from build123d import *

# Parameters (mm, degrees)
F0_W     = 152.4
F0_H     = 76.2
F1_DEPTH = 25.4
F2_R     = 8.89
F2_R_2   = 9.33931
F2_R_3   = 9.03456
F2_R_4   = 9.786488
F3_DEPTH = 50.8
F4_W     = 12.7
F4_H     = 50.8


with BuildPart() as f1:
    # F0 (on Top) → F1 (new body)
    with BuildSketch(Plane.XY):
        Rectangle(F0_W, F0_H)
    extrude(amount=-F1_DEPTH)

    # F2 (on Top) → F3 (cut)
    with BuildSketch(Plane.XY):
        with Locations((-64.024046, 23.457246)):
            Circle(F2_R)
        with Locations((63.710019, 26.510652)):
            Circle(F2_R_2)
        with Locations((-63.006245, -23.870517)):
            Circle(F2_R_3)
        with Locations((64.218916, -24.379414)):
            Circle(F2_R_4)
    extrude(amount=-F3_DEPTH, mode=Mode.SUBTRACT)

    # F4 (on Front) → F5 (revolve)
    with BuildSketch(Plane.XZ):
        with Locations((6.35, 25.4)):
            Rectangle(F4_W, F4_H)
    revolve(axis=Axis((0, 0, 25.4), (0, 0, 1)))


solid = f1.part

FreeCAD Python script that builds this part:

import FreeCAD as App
import Part
import Sketcher
Q = App.Units.Quantity


def add_polygon(sketch, points):
    """Adds a closed chain of lines whose ends are joined by coincident constraints."""
    first, n = sketch.GeometryCount, len(points)
    for a, b in zip(points, points[1:] + points[:1]):
        sketch.addGeometry(Part.LineSegment(App.Vector(*a, 0), App.Vector(*b, 0)), False)
    for i in range(n):
        sketch.addConstraint(Sketcher.Constraint("Coincident", first + i, 2, first + (i + 1) % n, 1))

doc = App.newDocument("Part")
body = doc.addObject("PartDesign::Body", "Body")

sketch1 = body.newObject("Sketcher::SketchObject", "Sketch")
sketch1.AttachmentSupport = (doc.getObject("XY_Plane"), [""])
sketch1.MapMode = "FlatFace"
add_polygon(sketch1, [(-76, 38), (-76, -38), (76, -38), (76, 38)])
sketch1.addConstraint(Sketcher.Constraint("Vertical", 0))
sketch1.addConstraint(Sketcher.Constraint("Horizontal", 1))
sketch1.addConstraint(Sketcher.Constraint("Vertical", 2))
sketch1.addConstraint(Sketcher.Constraint("Horizontal", 3))
sketch1.addConstraint(Sketcher.Constraint("Symmetric", 0, 2, 2, 2, -1, 1))
sketch1.addConstraint(Sketcher.Constraint("DistanceX", 1, 1, 1, 2, Q("6 in")))
sketch1.addConstraint(Sketcher.Constraint("DistanceY", 0, 2, 0, 1, Q("3 in")))
pad1 = body.newObject("PartDesign::Pad", "Pad")
pad1.Profile = sketch1
pad1.Length = Q("1 in")
pad1.Reversed = True

sketch2 = body.newObject("Sketcher::SketchObject", "Sketch001")
sketch2.AttachmentSupport = (doc.getObject("XY_Plane"), [""])
sketch2.MapMode = "FlatFace"
sketch2.addGeometry(Part.Circle(App.Vector(-64, 23, 0), App.Vector(0, 0, 1), 9), False)
sketch2.addGeometry(Part.Circle(App.Vector(64, 27, 0), App.Vector(0, 0, 1), 9), False)
sketch2.addGeometry(Part.Circle(App.Vector(-63, -24, 0), App.Vector(0, 0, 1), 9), False)
sketch2.addGeometry(Part.Circle(App.Vector(64, -24, 0), App.Vector(0, 0, 1), 10), False)
sketch2.addConstraint(Sketcher.Constraint("Diameter", 0, Q("0.7 in")))
sketch2.addConstraint(Sketcher.Constraint("Diameter", 1, 18.67862))
sketch2.addConstraint(Sketcher.Constraint("Diameter", 2, 18.06912))
sketch2.addConstraint(Sketcher.Constraint("Diameter", 3, 19.572976))
sketch2.addConstraint(Sketcher.Constraint("DistanceX", 0, 3, 1, 3, Q("5.0289002 in")))
sketch2.addConstraint(Sketcher.Constraint("DistanceX", 0, 3, 2, 3, 1.017801))
sketch2.addConstraint(Sketcher.Constraint("DistanceX", -1, 1, 1, 3, 63.710019))
sketch2.addConstraint(Sketcher.Constraint("DistanceY", 2, 3, 1, 3, 50.381169))
sketch2.addConstraint(Sketcher.Constraint("DistanceX", 2, 3, 3, 3, 127.225161))
sketch2.addConstraint(Sketcher.Constraint("DistanceY", 3, 3, 0, 3, 47.83666))
sketch2.addConstraint(Sketcher.Constraint("DistanceY", -1, 1, 0, 3, 23.457246))
sketch2.addConstraint(Sketcher.Constraint("DistanceY", -1, 1, 1, 3, 26.510652))
pocket1 = body.newObject("PartDesign::Pocket", "Pocket")
pocket1.Profile = sketch2
pocket1.Length = Q("2 in")

sketch3 = body.newObject("Sketcher::SketchObject", "Sketch002")
sketch3.AttachmentSupport = (doc.getObject("XZ_Plane"), [""])
sketch3.MapMode = "FlatFace"
add_polygon(sketch3, [(0, 51), (0, 0), (13, 0), (13, 51)])
sketch3.addConstraint(Sketcher.Constraint("Vertical", 0))
sketch3.addConstraint(Sketcher.Constraint("Horizontal", 1))
sketch3.addConstraint(Sketcher.Constraint("Vertical", 2))
sketch3.addConstraint(Sketcher.Constraint("Horizontal", 3))
sketch3.addConstraint(Sketcher.Constraint("Coincident", 0, 2, -1, 1))
sketch3.addConstraint(Sketcher.Constraint("DistanceY", 0, 2, 0, 1, Q("2 in")))
sketch3.addConstraint(Sketcher.Constraint("DistanceX", 1, 1, 1, 2, Q("0.5 in")))
revolution = body.newObject("PartDesign::Revolution", "Revolution")
revolution.Profile = sketch3
revolution.ReferenceAxis = (sketch3, ["V_Axis"])
revolution.Angle = 360

doc.recompute()
